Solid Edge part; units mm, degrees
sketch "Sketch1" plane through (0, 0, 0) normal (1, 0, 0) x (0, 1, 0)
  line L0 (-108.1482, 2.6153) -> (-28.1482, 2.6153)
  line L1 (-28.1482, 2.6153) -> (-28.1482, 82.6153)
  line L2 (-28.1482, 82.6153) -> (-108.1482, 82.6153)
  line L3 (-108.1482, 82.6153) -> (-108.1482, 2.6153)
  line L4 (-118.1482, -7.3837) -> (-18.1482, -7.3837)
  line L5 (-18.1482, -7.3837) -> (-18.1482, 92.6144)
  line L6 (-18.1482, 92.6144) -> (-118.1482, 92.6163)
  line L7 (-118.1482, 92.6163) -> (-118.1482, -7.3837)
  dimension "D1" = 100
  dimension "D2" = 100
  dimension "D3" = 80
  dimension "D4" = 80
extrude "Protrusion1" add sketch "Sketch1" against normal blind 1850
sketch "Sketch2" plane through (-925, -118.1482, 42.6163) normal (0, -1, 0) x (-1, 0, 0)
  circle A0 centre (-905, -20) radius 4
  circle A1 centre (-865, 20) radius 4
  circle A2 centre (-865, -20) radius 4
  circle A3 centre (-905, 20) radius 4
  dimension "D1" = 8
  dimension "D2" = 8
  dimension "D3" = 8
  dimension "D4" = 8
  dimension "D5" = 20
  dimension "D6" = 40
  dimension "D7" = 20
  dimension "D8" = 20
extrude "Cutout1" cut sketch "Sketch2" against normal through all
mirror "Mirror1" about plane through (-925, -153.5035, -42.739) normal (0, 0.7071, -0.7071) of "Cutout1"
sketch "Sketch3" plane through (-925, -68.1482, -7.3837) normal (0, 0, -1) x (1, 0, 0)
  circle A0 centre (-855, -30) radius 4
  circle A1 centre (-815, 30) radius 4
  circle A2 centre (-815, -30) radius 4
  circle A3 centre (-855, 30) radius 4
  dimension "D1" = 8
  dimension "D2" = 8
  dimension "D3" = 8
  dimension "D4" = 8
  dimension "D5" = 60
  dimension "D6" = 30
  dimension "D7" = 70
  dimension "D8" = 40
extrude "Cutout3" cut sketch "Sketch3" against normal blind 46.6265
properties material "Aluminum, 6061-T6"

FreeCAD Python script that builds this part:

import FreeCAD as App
import Part
import Sketcher
from FreeCAD import Vector
Q = App.Units.Quantity

doc = App.newDocument("Part")
body = doc.addObject("PartDesign::Body", "Body")

sketch1 = body.newObject("Sketcher::SketchObject", "Sketch")
sketch1.AttachmentSupport = (doc.getObject("YZ_Plane"), [""])
sketch1.MapMode = "FlatFace"
sketch1.addGeometry([
    Part.LineSegment(Vector(-118, 93, 0), Vector(-118, -7, 0)),
    Part.LineSegment(Vector(-118, -7, 0), Vector(-18, -7, 0)),
    Part.LineSegment(Vector(-18, -7, 0), Vector(-18, 93, 0)),
    Part.LineSegment(Vector(-18, 93, 0), Vector(-118, 93, 0)),
    Part.LineSegment(Vector(-28, 3, 0), Vector(-108, 3, 0)),
    Part.LineSegment(Vector(-108, 3, 0), Vector(-108, 83, 0)),
    Part.LineSegment(Vector(-108, 83, 0), Vector(-28, 83, 0)),
    Part.LineSegment(Vector(-28, 83, 0), Vector(-28, 3, 0)),
], False)
sketch1.addConstraint([
    Sketcher.Constraint("Coincident", 0, 2, 1, 1),
    Sketcher.Constraint("Coincident", 1, 2, 2, 1),
    Sketcher.Constraint("Coincident", 2, 2, 3, 1),
    Sketcher.Constraint("Coincident", 3, 2, 0, 1),
    Sketcher.Constraint("Coincident", 4, 2, 5, 1),
    Sketcher.Constraint("Coincident", 5, 2, 6, 1),
    Sketcher.Constraint("Coincident", 6, 2, 7, 1),
    Sketcher.Constraint("Coincident", 7, 2, 4, 1),
    Sketcher.Constraint("Vertical", 0),
    Sketcher.Constraint("Horizontal", 1),
    Sketcher.Constraint("Vertical", 2),
    Sketcher.Constraint("Horizontal", 4),
    Sketcher.Constraint("Vertical", 5),
    Sketcher.Constraint("Horizontal", 6),
    Sketcher.Constraint("Vertical", 7),
    Sketcher.Constraint("Equal", 1, 0),
    Sketcher.Constraint("Equal", 6, 5),
    Sketcher.Constraint("DistanceX", 1, 1, 1, 2, 100.0),
    Sketcher.Constraint("DistanceX", 4, 2, 4, 1, 80.0),
    Sketcher.Constraint("Angle", 3, Q("179.999 deg")),
    Sketcher.Constraint("DistanceX", 0, 2, 4, 2, 10.0),
    Sketcher.Constraint("DistanceX", 4, 2, -1, 1, 108.1482),
    Sketcher.Constraint("DistanceY", 0, 2, 4, 2, 9.999),
    Sketcher.Constraint("DistanceY", 0, 2, -1, 1, 7.3837),
])
pad1 = body.newObject("PartDesign::Pad", "Pad")
pad1.Profile = sketch1
pad1.Length = 1850
pad1.Reversed = True

sketch2 = body.newObject("Sketcher::SketchObject", "Sketch001")
sketch2.AttachmentSupport = (doc.getObject("XZ_Plane"), [""])
sketch2.MapMode = "FlatFace"
sketch2.AttachmentOffset = App.Placement(Vector(0, 0, 118.1482), App.Rotation())
sketch2.addGeometry([
    Part.Circle(Vector(-20, 62.6, 0), Vector(0, 0, 1), 4),
    Part.Circle(Vector(-60, 22.6, 0), Vector(0, 0, 1), 4),
    Part.Circle(Vector(-60, 62.6, 0), Vector(0, 0, 1), 4),
    Part.Circle(Vector(-20, 22.6, 0), Vector(0, 0, 1), 4),
], False)
sketch2.addConstraint([
    Sketcher.Constraint("Equal", 0, 1),
    Sketcher.Constraint("Equal", 1, 2),
    Sketcher.Constraint("Equal", 2, 3),
    Sketcher.Constraint("Horizontal", 0, 3, 2, 3),
    Sketcher.Constraint("Horizontal", 1, 3, 3, 3),
    Sketcher.Constraint("Vertical", 1, 3, 2, 3),
    Sketcher.Constraint("Vertical", 0, 3, 3, 3),
    Sketcher.Constraint("Diameter", 0, 8.0),
    Sketcher.Constraint("DistanceX", 0, 3, -1, 1, 20.0),
    Sketcher.Constraint("DistanceX", 1, 3, -1, 1, 60.0),
    Sketcher.Constraint("DistanceY", 1, 3, 0, 3, 40.0),
    Sketcher.Constraint("DistanceY", -1, 1, 0, 3, 62.6163),
])
pocket1 = body.newObject("PartDesign::Pocket", "Pocket")
pocket1.Profile = sketch2
pocket1.Type = "ThroughAll"
doc.recompute()

datumplane = body.newObject("PartDesign::Plane", "DatumPlane")
datumplane.Placement = App.Placement(Vector(0, -55.38225, 55.38225), App.Rotation(Vector(0, 0.707106781, 0.707106781), Vector(-1, 0, 0), Vector(0, -0.707106781, 0.707106781), "ZXY"))
mirrored = body.newObject("PartDesign::Mirrored", "Mirrored")
mirrored.Originals = [pocket1]
mirrored.MirrorPlane = (datumplane, [""])
body.Tip = mirrored

sketch3 = body.newObject("Sketcher::SketchObject", "Sketch002")
sketch3.AttachmentSupport = (doc.getObject("XY_Plane"), [""])
sketch3.MapMode = "FlatFace"
sketch3.AttachmentOffset = App.Placement(Vector(0, 0, -7.3837), App.Rotation())
sketch3.addGeometry([
    Part.Circle(Vector(-1780, -38.1, 0), Vector(0, 0, 1), 4),
    Part.Circle(Vector(-1740, -98.1, 0), Vector(0, 0, 1), 4),
    Part.Circle(Vector(-1740, -38.1, 0), Vector(0, 0, 1), 4),
    Part.Circle(Vector(-1780, -98.1, 0), Vector(0, 0, 1), 4),
], False)
sketch3.addConstraint([
    Sketcher.Constraint("Equal", 0, 1),
    Sketcher.Constraint("Equal", 1, 2),
    Sketcher.Constraint("Equal", 2, 3),
    Sketcher.Constraint("Horizontal", 0, 3, 2, 3),
    Sketcher.Constraint("Horizontal", 1, 3, 3, 3),
    Sketcher.Constraint("Vertical", 1, 3, 2, 3),
    Sketcher.Constraint("Vertical", 0, 3, 3, 3),
    Sketcher.Constraint("Diameter", 0, 8.0),
    Sketcher.Constraint("DistanceX", 0, 3, -1, 1, 1780.0),
    Sketcher.Constraint("DistanceX", 1, 3, -1, 1, 1740.0),
    Sketcher.Constraint("DistanceY", 1, 3, 0, 3, 60.0),
    Sketcher.Constraint("DistanceY", 0, 3, -1, 1, 38.1482),
])
pocket2 = body.newObject("PartDesign::Pocket", "Pocket001")
pocket2.Profile = sketch3
pocket2.Length = 46.6265
pocket2.Reversed = True

doc.recompute()
